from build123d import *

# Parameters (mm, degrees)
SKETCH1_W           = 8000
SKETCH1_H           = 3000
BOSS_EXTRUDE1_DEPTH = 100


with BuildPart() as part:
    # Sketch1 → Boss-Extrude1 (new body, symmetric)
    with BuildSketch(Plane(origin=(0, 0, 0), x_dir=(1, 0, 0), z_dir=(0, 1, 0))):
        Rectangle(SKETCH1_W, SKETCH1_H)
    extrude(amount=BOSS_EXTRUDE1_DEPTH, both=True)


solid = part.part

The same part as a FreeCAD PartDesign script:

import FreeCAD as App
import Part
import Sketcher

doc = App.newDocument("Part")
params = doc.addObject("Spreadsheet::Sheet", "Params")
for row, (alias, value) in enumerate([
    ("sketch1_width", "8000 mm"),
    ("sketch1_height", "3000 mm"),
    ("pad1_length", "200 mm"),
], start=1):
    params.set(f"A{row}", alias)
    params.set(f"B{row}", "=" + value)
    params.setAlias(f"B{row}", alias)

body = doc.addObject("PartDesign::Body", "Body")

# Sketch on XZ plane
sketch1 = doc.addObject("Sketcher::SketchObject", "Sketch")
body.addObject(sketch1)
sketch1.AttachmentSupport = (doc.XZ_Plane, [""])
sketch1.MapMode = "FlatFace"
sketch1.addGeometry([
    Part.LineSegment(App.Vector(-4000, -1500, 0), App.Vector(-4000, 1500, 0)),
    Part.LineSegment(App.Vector(-4000, 1500, 0), App.Vector(4000, 1500, 0)),
    Part.LineSegment(App.Vector(4000, 1500, 0), App.Vector(4000, -1500, 0)),
    Part.LineSegment(App.Vector(4000, -1500, 0), App.Vector(-4000, -1500, 0)),
], False)
sketch1.addConstraint([
    Sketcher.Constraint("Coincident", 0, 2, 1, 1),
    Sketcher.Constraint("Coincident", 1, 2, 2, 1),
    Sketcher.Constraint("Coincident", 2, 2, 3, 1),
    Sketcher.Constraint("Coincident", 3, 2, 0, 1),
    Sketcher.Constraint("Vertical", 0),
    Sketcher.Constraint("Horizontal", 1),
    Sketcher.Constraint("Vertical", 2),
    Sketcher.Constraint("Horizontal", 3),
    Sketcher.Constraint("Symmetric", 0, 2, 2, 2, -1, 1),
    Sketcher.Constraint("DistanceX", 1, 1, 1, 2, 8000.0),
    Sketcher.Constraint("DistanceY", 0, 1, 0, 2, 3000.0),
])
sketch1.setExpression("Constraints[9]", "Params.sketch1_width")
sketch1.setExpression("Constraints[10]", "Params.sketch1_height")
pad1 = doc.addObject("PartDesign::Pad", "Pad")
body.addObject(pad1)
pad1.Profile = sketch1
pad1.setExpression("Length", "Params.pad1_length")
pad1.Midplane = True

doc.recompute()
